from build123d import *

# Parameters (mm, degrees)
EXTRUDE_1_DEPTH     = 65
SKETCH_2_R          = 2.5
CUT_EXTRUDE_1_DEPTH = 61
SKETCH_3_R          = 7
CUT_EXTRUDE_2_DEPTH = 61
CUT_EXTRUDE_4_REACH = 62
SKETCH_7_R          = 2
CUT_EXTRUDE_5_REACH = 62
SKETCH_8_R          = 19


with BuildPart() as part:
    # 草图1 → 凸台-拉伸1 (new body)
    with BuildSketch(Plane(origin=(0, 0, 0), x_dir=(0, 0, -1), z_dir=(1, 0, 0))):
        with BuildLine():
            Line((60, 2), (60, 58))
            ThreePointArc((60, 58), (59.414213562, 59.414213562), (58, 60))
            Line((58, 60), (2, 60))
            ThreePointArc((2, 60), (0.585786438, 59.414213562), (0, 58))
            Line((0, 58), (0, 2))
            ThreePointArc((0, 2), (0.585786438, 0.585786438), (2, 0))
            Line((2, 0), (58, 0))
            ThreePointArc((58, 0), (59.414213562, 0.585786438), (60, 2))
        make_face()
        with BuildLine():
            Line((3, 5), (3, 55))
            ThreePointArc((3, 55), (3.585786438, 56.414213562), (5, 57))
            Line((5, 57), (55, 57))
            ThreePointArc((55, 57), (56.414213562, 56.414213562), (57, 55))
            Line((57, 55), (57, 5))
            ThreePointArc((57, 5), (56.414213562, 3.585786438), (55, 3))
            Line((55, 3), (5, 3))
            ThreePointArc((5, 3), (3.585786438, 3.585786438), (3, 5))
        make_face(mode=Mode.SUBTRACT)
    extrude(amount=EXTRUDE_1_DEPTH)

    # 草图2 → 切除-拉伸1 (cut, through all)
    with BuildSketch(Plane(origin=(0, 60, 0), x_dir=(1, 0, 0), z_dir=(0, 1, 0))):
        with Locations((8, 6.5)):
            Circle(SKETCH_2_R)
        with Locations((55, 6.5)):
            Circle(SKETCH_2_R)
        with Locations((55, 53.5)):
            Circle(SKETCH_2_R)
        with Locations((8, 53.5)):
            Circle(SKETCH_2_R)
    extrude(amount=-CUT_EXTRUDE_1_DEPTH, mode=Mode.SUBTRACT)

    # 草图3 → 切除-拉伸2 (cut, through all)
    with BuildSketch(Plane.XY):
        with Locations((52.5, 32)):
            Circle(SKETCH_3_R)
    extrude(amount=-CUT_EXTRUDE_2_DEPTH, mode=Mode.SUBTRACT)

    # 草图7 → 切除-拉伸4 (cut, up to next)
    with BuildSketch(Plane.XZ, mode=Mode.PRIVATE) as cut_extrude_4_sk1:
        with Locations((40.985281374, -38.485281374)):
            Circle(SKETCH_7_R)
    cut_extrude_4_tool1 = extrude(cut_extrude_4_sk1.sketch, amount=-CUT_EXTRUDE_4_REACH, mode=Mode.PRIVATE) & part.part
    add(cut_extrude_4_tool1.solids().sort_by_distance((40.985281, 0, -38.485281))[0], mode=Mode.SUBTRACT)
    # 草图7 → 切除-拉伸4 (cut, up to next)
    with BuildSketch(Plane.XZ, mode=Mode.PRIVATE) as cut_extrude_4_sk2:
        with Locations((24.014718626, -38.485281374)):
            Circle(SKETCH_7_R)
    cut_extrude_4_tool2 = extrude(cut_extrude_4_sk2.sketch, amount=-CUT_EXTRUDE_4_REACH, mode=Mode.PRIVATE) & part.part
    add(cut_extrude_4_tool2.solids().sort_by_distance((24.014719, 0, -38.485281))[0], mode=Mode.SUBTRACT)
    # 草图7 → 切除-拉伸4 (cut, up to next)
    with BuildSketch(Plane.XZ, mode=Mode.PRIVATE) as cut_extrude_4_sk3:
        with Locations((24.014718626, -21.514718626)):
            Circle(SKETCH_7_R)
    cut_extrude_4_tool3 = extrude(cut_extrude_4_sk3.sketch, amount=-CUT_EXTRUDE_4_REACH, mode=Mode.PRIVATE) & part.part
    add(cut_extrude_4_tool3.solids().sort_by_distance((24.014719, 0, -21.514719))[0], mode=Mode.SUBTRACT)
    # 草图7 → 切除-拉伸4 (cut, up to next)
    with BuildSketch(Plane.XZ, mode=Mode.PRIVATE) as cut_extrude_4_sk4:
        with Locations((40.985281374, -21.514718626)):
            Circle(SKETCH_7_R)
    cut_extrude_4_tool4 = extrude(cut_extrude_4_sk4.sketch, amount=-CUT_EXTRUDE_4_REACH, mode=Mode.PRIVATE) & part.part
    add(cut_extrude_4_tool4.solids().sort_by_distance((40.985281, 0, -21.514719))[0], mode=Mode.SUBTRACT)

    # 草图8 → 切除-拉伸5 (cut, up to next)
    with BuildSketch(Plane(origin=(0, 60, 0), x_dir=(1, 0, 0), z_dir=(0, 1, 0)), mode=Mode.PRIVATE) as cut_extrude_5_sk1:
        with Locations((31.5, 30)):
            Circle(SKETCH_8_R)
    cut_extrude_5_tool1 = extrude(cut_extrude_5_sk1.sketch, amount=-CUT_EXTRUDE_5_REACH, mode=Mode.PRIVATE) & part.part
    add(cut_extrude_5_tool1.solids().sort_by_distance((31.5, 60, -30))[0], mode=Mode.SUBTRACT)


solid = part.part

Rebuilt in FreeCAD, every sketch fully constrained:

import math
import FreeCAD as App
import Part
import Sketcher

V = App.Vector

doc = App.newDocument("Part")
body = doc.addObject("PartDesign::Body", "Body")

# Sketch on YZ plane
sketch1 = body.newObject("Sketcher::SketchObject", "Sketch")
sketch1.AttachmentSupport = (doc.getObject("YZ_Plane"), [""])
sketch1.MapMode = "FlatFace"
sketch1.addGeometry(Part.LineSegment(V(2, -60, 0), V(58, -60, 0)), False)
sketch1.addGeometry(Part.ArcOfCircle(Part.Circle(V(58, -58, 0), V(0, 0, 1), 2), math.radians(-90), math.radians(0)), False)
sketch1.addGeometry(Part.LineSegment(V(60, -58, 0), V(60, -2, 0)), False)
sketch1.addGeometry(Part.ArcOfCircle(Part.Circle(V(58, -2, 0), V(0, 0, 1), 2), math.radians(0), math.radians(90)), False)
sketch1.addGeometry(Part.LineSegment(V(58, 0, 0), V(2, 0, 0)), False)
sketch1.addGeometry(Part.ArcOfCircle(Part.Circle(V(2, -2, 0), V(0, 0, 1), 2), math.radians(90), math.radians(180)), False)
sketch1.addGeometry(Part.LineSegment(V(0, -2, 0), V(0, -58, 0)), False)
sketch1.addGeometry(Part.ArcOfCircle(Part.Circle(V(2, -58, 0), V(0, 0, 1), 2), math.radians(-180), math.radians(-90)), False)
sketch1.addGeometry(Part.ArcOfCircle(Part.Circle(V(5, -5, 0), V(0, 0, 1), 2), math.radians(90), math.radians(180)), False)
sketch1.addGeometry(Part.LineSegment(V(5, -3, 0), V(55, -3, 0)), False)
sketch1.addGeometry(Part.ArcOfCircle(Part.Circle(V(55, -5, 0), V(0, 0, 1), 2), math.radians(0), math.radians(90)), False)
sketch1.addGeometry(Part.LineSegment(V(57, -5, 0), V(57, -55, 0)), False)
sketch1.addGeometry(Part.ArcOfCircle(Part.Circle(V(55, -55, 0), V(0, 0, 1), 2), math.radians(-90), math.radians(0)), False)
sketch1.addGeometry(Part.LineSegment(V(55, -57, 0), V(5, -57, 0)), False)
sketch1.addGeometry(Part.ArcOfCircle(Part.Circle(V(5, -55, 0), V(0, 0, 1), 2), math.radians(-180), math.radians(-90)), False)
sketch1.addGeometry(Part.LineSegment(V(3, -55, 0), V(3, -5, 0)), False)
sketch1.addConstraint(Sketcher.Constraint("Tangent", 0, 2, 1, 1))
sketch1.addConstraint(Sketcher.Constraint("Tangent", 1, 2, 2, 1))
sketch1.addConstraint(Sketcher.Constraint("Tangent", 2, 2, 3, 1))
sketch1.addConstraint(Sketcher.Constraint("Tangent", 3, 2, 4, 1))
sketch1.addConstraint(Sketcher.Constraint("Tangent", 4, 2, 5, 1))
sketch1.addConstraint(Sketcher.Constraint("Tangent", 5, 2, 6, 1))
sketch1.addConstraint(Sketcher.Constraint("Tangent", 6, 2, 7, 1))
sketch1.addConstraint(Sketcher.Constraint("Tangent", 7, 2, 0, 1))
sketch1.addConstraint(Sketcher.Constraint("Tangent", 8, 1, 9, 1))
sketch1.addConstraint(Sketcher.Constraint("Tangent", 9, 2, 10, 2))
sketch1.addConstraint(Sketcher.Constraint("Tangent", 10, 1, 11, 1))
sketch1.addConstraint(Sketcher.Constraint("Tangent", 11, 2, 12, 2))
sketch1.addConstraint(Sketcher.Constraint("Tangent", 12, 1, 13, 1))
sketch1.addConstraint(Sketcher.Constraint("Tangent", 13, 2, 14, 2))
sketch1.addConstraint(Sketcher.Constraint("Tangent", 14, 1, 15, 1))
sketch1.addConstraint(Sketcher.Constraint("Tangent", 15, 2, 8, 2))
sketch1.addConstraint(Sketcher.Constraint("Horizontal", 0))
sketch1.addConstraint(Sketcher.Constraint("Vertical", 2))
sketch1.addConstraint(Sketcher.Constraint("Horizontal", 4))
sketch1.addConstraint(Sketcher.Constraint("Vertical", 6))
sketch1.addConstraint(Sketcher.Constraint("Horizontal", 9))
sketch1.addConstraint(Sketcher.Constraint("Vertical", 11))
sketch1.addConstraint(Sketcher.Constraint("Horizontal", 13))
sketch1.addConstraint(Sketcher.Constraint("Vertical", 15))
sketch1.addConstraint(Sketcher.Constraint("Equal", 1, 3))
sketch1.addConstraint(Sketcher.Constraint("Equal", 3, 5))
sketch1.addConstraint(Sketcher.Constraint("Equal", 5, 7))
sketch1.addConstraint(Sketcher.Constraint("Equal", 7, 8))
sketch1.addConstraint(Sketcher.Constraint("Equal", 8, 10))
sketch1.addConstraint(Sketcher.Constraint("Equal", 10, 12))
sketch1.addConstraint(Sketcher.Constraint("Equal", 12, 14))
sketch1.addConstraint(Sketcher.Constraint("PointOnObject", 3, 2, -1))
sketch1.addConstraint(Sketcher.Constraint("PointOnObject", 5, 2, -2))
sketch1.addConstraint(Sketcher.Constraint("Equal", 4, 2))
sketch1.addConstraint(Sketcher.Constraint("Equal", 13, 11))
sketch1.addConstraint(Sketcher.Constraint("Radius", 1, 2.0))
sketch1.addConstraint(Sketcher.Constraint("DistanceX", 0, 1, 0, 2, 56.0))
sketch1.addConstraint(Sketcher.Constraint("DistanceX", 9, 1, 9, 2, 50.0))
sketch1.addConstraint(Sketcher.Constraint("DistanceX", -1, 1, 8, 3, 5.0))
sketch1.addConstraint(Sketcher.Constraint("DistanceY", 8, 3, -1, 1, 5.0))
pad1 = body.newObject("PartDesign::Pad", "Pad")
pad1.Profile = sketch1
pad1.Length = 65

# Sketch on XZ plane
sketch2 = body.newObject("Sketcher::SketchObject", "Sketch001")
sketch2.AttachmentSupport = (doc.getObject("XZ_Plane"), [""])
sketch2.MapMode = "FlatFace"
sketch2.AttachmentOffset = App.Placement(V(0, 0, -60), App.Rotation())
sketch2.addGeometry(Part.Circle(V(8, -6.5, 0), V(0, 0, 1), 2.5), False)
sketch2.addGeometry(Part.Circle(V(55, -6.5, 0), V(0, 0, 1), 2.5), False)
sketch2.addGeometry(Part.Circle(V(55, -53.5, 0), V(0, 0, 1), 2.5), False)
sketch2.addGeometry(Part.Circle(V(8, -53.5, 0), V(0, 0, 1), 2.5), False)
sketch2.addConstraint(Sketcher.Constraint("Equal", 0, 1))
sketch2.addConstraint(Sketcher.Constraint("Equal", 1, 2))
sketch2.addConstraint(Sketcher.Constraint("Equal", 2, 3))
sketch2.addConstraint(Sketcher.Constraint("Horizontal", 0, 3, 1, 3))
sketch2.addConstraint(Sketcher.Constraint("Horizontal", 2, 3, 3, 3))
sketch2.addConstraint(Sketcher.Constraint("Vertical", 1, 3, 2, 3))
sketch2.addConstraint(Sketcher.Constraint("Vertical", 0, 3, 3, 3))
sketch2.addConstraint(Sketcher.Constraint("Diameter", 0, 5.0))
sketch2.addConstraint(Sketcher.Constraint("DistanceX", -1, 1, 0, 3, 8.0))
sketch2.addConstraint(Sketcher.Constraint("DistanceX", -1, 1, 1, 3, 55.0))
sketch2.addConstraint(Sketcher.Constraint("DistanceY", 2, 3, 1, 3, 47.0))
sketch2.addConstraint(Sketcher.Constraint("DistanceY", 0, 3, -1, 1, 6.5))
pocket1 = body.newObject("PartDesign::Pocket", "Pocket")
pocket1.Profile = sketch2
pocket1.Type = "ThroughAll"
pocket1.Reversed = True

# Sketch on XY plane
sketch3 = body.newObject("Sketcher::SketchObject", "Sketch002")
sketch3.AttachmentSupport = (doc.getObject("XY_Plane"), [""])
sketch3.MapMode = "FlatFace"
sketch3.addGeometry(Part.Circle(V(52.5, 32, 0), V(0, 0, 1), 7), False)
sketch3.addConstraint(Sketcher.Constraint("Diameter", 0, 14.0))
sketch3.addConstraint(Sketcher.Constraint("DistanceY", -1, 1, 0, 3, 32.0))
sketch3.addConstraint(Sketcher.Constraint("DistanceX", -1, 1, 0, 3, 52.5))
pocket2 = body.newObject("PartDesign::Pocket", "Pocket001")
pocket2.Profile = sketch3
pocket2.Type = "ThroughAll"

# Sketch on XZ plane
sketch4 = body.newObject("Sketcher::SketchObject", "Sketch003")
sketch4.AttachmentSupport = (doc.getObject("XZ_Plane"), [""])
sketch4.MapMode = "FlatFace"
sketch4.addGeometry(Part.Circle(V(40.985281, -38.485281, 0), V(0, 0, 1), 2), False)
sketch4.addConstraint(Sketcher.Constraint("Diameter", 0, 4.0))
sketch4.addConstraint(Sketcher.Constraint("DistanceX", -1, 1, 0, 3, 40.985281))
sketch4.addConstraint(Sketcher.Constraint("DistanceY", 0, 3, -1, 1, 38.485281))
pocket3 = body.newObject("PartDesign::Pocket", "Pocket002")
pocket3.Profile = sketch4
pocket3.Type = "UpToFirst"

# Sketch on XZ plane
sketch5 = body.newObject("Sketcher::SketchObject", "Sketch004")
sketch5.AttachmentSupport = (doc.getObject("XZ_Plane"), [""])
sketch5.MapMode = "FlatFace"
sketch5.addGeometry(Part.Circle(V(24.014719, -38.485281, 0), V(0, 0, 1), 2), False)
sketch5.addConstraint(Sketcher.Constraint("Diameter", 0, 4.0))
sketch5.addConstraint(Sketcher.Constraint("DistanceX", -1, 1, 0, 3, 24.014719))
sketch5.addConstraint(Sketcher.Constraint("DistanceY", 0, 3, -1, 1, 38.485281))
pocket4 = body.newObject("PartDesign::Pocket", "Pocket003")
pocket4.Profile = sketch5
pocket4.Type = "UpToFirst"

# Sketch on XZ plane
sketch6 = body.newObject("Sketcher::SketchObject", "Sketch005")
sketch6.AttachmentSupport = (doc.getObject("XZ_Plane"), [""])
sketch6.MapMode = "FlatFace"
sketch6.addGeometry(Part.Circle(V(24.014719, -21.514719, 0), V(0, 0, 1), 2), False)
sketch6.addConstraint(Sketcher.Constraint("Diameter", 0, 4.0))
sketch6.addConstraint(Sketcher.Constraint("DistanceX", -1, 1, 0, 3, 24.014719))
sketch6.addConstraint(Sketcher.Constraint("DistanceY", 0, 3, -1, 1, 21.514719))
pocket5 = body.newObject("PartDesign::Pocket", "Pocket004")
pocket5.Profile = sketch6
pocket5.Type = "UpToFirst"

# Sketch on XZ plane
sketch7 = body.newObject("Sketcher::SketchObject", "Sketch006")
sketch7.AttachmentSupport = (doc.getObject("XZ_Plane"), [""])
sketch7.MapMode = "FlatFace"
sketch7.addGeometry(Part.Circle(V(40.985281, -21.514719, 0), V(0, 0, 1), 2), False)
sketch7.addConstraint(Sketcher.Constraint("Diameter", 0, 4.0))
sketch7.addConstraint(Sketcher.Constraint("DistanceX", -1, 1, 0, 3, 40.985281))
sketch7.addConstraint(Sketcher.Constraint("DistanceY", 0, 3, -1, 1, 21.514719))
pocket6 = body.newObject("PartDesign::Pocket", "Pocket005")
pocket6.Profile = sketch7
pocket6.Type = "UpToFirst"

# Sketch on XZ plane
sketch8 = body.newObject("Sketcher::SketchObject", "Sketch007")
sketch8.AttachmentSupport = (doc.getObject("XZ_Plane"), [""])
sketch8.MapMode = "FlatFace"
sketch8.AttachmentOffset = App.Placement(V(0, 0, -60), App.Rotation())
sketch8.addGeometry(Part.Circle(V(31.5, -30, 0), V(0, 0, 1), 19), False)
sketch8.addConstraint(Sketcher.Constraint("Diameter", 0, 38.0))
sketch8.addConstraint(Sketcher.Constraint("DistanceY", 0, 3, -1, 1, 30.0))
sketch8.addConstraint(Sketcher.Constraint("DistanceX", -1, 1, 0, 3, 31.5))
pocket7 = body.newObject("PartDesign::Pocket", "Pocket006")
pocket7.Profile = sketch8
pocket7.Type = "UpToFirst"
pocket7.Reversed = True

doc.recompute()
